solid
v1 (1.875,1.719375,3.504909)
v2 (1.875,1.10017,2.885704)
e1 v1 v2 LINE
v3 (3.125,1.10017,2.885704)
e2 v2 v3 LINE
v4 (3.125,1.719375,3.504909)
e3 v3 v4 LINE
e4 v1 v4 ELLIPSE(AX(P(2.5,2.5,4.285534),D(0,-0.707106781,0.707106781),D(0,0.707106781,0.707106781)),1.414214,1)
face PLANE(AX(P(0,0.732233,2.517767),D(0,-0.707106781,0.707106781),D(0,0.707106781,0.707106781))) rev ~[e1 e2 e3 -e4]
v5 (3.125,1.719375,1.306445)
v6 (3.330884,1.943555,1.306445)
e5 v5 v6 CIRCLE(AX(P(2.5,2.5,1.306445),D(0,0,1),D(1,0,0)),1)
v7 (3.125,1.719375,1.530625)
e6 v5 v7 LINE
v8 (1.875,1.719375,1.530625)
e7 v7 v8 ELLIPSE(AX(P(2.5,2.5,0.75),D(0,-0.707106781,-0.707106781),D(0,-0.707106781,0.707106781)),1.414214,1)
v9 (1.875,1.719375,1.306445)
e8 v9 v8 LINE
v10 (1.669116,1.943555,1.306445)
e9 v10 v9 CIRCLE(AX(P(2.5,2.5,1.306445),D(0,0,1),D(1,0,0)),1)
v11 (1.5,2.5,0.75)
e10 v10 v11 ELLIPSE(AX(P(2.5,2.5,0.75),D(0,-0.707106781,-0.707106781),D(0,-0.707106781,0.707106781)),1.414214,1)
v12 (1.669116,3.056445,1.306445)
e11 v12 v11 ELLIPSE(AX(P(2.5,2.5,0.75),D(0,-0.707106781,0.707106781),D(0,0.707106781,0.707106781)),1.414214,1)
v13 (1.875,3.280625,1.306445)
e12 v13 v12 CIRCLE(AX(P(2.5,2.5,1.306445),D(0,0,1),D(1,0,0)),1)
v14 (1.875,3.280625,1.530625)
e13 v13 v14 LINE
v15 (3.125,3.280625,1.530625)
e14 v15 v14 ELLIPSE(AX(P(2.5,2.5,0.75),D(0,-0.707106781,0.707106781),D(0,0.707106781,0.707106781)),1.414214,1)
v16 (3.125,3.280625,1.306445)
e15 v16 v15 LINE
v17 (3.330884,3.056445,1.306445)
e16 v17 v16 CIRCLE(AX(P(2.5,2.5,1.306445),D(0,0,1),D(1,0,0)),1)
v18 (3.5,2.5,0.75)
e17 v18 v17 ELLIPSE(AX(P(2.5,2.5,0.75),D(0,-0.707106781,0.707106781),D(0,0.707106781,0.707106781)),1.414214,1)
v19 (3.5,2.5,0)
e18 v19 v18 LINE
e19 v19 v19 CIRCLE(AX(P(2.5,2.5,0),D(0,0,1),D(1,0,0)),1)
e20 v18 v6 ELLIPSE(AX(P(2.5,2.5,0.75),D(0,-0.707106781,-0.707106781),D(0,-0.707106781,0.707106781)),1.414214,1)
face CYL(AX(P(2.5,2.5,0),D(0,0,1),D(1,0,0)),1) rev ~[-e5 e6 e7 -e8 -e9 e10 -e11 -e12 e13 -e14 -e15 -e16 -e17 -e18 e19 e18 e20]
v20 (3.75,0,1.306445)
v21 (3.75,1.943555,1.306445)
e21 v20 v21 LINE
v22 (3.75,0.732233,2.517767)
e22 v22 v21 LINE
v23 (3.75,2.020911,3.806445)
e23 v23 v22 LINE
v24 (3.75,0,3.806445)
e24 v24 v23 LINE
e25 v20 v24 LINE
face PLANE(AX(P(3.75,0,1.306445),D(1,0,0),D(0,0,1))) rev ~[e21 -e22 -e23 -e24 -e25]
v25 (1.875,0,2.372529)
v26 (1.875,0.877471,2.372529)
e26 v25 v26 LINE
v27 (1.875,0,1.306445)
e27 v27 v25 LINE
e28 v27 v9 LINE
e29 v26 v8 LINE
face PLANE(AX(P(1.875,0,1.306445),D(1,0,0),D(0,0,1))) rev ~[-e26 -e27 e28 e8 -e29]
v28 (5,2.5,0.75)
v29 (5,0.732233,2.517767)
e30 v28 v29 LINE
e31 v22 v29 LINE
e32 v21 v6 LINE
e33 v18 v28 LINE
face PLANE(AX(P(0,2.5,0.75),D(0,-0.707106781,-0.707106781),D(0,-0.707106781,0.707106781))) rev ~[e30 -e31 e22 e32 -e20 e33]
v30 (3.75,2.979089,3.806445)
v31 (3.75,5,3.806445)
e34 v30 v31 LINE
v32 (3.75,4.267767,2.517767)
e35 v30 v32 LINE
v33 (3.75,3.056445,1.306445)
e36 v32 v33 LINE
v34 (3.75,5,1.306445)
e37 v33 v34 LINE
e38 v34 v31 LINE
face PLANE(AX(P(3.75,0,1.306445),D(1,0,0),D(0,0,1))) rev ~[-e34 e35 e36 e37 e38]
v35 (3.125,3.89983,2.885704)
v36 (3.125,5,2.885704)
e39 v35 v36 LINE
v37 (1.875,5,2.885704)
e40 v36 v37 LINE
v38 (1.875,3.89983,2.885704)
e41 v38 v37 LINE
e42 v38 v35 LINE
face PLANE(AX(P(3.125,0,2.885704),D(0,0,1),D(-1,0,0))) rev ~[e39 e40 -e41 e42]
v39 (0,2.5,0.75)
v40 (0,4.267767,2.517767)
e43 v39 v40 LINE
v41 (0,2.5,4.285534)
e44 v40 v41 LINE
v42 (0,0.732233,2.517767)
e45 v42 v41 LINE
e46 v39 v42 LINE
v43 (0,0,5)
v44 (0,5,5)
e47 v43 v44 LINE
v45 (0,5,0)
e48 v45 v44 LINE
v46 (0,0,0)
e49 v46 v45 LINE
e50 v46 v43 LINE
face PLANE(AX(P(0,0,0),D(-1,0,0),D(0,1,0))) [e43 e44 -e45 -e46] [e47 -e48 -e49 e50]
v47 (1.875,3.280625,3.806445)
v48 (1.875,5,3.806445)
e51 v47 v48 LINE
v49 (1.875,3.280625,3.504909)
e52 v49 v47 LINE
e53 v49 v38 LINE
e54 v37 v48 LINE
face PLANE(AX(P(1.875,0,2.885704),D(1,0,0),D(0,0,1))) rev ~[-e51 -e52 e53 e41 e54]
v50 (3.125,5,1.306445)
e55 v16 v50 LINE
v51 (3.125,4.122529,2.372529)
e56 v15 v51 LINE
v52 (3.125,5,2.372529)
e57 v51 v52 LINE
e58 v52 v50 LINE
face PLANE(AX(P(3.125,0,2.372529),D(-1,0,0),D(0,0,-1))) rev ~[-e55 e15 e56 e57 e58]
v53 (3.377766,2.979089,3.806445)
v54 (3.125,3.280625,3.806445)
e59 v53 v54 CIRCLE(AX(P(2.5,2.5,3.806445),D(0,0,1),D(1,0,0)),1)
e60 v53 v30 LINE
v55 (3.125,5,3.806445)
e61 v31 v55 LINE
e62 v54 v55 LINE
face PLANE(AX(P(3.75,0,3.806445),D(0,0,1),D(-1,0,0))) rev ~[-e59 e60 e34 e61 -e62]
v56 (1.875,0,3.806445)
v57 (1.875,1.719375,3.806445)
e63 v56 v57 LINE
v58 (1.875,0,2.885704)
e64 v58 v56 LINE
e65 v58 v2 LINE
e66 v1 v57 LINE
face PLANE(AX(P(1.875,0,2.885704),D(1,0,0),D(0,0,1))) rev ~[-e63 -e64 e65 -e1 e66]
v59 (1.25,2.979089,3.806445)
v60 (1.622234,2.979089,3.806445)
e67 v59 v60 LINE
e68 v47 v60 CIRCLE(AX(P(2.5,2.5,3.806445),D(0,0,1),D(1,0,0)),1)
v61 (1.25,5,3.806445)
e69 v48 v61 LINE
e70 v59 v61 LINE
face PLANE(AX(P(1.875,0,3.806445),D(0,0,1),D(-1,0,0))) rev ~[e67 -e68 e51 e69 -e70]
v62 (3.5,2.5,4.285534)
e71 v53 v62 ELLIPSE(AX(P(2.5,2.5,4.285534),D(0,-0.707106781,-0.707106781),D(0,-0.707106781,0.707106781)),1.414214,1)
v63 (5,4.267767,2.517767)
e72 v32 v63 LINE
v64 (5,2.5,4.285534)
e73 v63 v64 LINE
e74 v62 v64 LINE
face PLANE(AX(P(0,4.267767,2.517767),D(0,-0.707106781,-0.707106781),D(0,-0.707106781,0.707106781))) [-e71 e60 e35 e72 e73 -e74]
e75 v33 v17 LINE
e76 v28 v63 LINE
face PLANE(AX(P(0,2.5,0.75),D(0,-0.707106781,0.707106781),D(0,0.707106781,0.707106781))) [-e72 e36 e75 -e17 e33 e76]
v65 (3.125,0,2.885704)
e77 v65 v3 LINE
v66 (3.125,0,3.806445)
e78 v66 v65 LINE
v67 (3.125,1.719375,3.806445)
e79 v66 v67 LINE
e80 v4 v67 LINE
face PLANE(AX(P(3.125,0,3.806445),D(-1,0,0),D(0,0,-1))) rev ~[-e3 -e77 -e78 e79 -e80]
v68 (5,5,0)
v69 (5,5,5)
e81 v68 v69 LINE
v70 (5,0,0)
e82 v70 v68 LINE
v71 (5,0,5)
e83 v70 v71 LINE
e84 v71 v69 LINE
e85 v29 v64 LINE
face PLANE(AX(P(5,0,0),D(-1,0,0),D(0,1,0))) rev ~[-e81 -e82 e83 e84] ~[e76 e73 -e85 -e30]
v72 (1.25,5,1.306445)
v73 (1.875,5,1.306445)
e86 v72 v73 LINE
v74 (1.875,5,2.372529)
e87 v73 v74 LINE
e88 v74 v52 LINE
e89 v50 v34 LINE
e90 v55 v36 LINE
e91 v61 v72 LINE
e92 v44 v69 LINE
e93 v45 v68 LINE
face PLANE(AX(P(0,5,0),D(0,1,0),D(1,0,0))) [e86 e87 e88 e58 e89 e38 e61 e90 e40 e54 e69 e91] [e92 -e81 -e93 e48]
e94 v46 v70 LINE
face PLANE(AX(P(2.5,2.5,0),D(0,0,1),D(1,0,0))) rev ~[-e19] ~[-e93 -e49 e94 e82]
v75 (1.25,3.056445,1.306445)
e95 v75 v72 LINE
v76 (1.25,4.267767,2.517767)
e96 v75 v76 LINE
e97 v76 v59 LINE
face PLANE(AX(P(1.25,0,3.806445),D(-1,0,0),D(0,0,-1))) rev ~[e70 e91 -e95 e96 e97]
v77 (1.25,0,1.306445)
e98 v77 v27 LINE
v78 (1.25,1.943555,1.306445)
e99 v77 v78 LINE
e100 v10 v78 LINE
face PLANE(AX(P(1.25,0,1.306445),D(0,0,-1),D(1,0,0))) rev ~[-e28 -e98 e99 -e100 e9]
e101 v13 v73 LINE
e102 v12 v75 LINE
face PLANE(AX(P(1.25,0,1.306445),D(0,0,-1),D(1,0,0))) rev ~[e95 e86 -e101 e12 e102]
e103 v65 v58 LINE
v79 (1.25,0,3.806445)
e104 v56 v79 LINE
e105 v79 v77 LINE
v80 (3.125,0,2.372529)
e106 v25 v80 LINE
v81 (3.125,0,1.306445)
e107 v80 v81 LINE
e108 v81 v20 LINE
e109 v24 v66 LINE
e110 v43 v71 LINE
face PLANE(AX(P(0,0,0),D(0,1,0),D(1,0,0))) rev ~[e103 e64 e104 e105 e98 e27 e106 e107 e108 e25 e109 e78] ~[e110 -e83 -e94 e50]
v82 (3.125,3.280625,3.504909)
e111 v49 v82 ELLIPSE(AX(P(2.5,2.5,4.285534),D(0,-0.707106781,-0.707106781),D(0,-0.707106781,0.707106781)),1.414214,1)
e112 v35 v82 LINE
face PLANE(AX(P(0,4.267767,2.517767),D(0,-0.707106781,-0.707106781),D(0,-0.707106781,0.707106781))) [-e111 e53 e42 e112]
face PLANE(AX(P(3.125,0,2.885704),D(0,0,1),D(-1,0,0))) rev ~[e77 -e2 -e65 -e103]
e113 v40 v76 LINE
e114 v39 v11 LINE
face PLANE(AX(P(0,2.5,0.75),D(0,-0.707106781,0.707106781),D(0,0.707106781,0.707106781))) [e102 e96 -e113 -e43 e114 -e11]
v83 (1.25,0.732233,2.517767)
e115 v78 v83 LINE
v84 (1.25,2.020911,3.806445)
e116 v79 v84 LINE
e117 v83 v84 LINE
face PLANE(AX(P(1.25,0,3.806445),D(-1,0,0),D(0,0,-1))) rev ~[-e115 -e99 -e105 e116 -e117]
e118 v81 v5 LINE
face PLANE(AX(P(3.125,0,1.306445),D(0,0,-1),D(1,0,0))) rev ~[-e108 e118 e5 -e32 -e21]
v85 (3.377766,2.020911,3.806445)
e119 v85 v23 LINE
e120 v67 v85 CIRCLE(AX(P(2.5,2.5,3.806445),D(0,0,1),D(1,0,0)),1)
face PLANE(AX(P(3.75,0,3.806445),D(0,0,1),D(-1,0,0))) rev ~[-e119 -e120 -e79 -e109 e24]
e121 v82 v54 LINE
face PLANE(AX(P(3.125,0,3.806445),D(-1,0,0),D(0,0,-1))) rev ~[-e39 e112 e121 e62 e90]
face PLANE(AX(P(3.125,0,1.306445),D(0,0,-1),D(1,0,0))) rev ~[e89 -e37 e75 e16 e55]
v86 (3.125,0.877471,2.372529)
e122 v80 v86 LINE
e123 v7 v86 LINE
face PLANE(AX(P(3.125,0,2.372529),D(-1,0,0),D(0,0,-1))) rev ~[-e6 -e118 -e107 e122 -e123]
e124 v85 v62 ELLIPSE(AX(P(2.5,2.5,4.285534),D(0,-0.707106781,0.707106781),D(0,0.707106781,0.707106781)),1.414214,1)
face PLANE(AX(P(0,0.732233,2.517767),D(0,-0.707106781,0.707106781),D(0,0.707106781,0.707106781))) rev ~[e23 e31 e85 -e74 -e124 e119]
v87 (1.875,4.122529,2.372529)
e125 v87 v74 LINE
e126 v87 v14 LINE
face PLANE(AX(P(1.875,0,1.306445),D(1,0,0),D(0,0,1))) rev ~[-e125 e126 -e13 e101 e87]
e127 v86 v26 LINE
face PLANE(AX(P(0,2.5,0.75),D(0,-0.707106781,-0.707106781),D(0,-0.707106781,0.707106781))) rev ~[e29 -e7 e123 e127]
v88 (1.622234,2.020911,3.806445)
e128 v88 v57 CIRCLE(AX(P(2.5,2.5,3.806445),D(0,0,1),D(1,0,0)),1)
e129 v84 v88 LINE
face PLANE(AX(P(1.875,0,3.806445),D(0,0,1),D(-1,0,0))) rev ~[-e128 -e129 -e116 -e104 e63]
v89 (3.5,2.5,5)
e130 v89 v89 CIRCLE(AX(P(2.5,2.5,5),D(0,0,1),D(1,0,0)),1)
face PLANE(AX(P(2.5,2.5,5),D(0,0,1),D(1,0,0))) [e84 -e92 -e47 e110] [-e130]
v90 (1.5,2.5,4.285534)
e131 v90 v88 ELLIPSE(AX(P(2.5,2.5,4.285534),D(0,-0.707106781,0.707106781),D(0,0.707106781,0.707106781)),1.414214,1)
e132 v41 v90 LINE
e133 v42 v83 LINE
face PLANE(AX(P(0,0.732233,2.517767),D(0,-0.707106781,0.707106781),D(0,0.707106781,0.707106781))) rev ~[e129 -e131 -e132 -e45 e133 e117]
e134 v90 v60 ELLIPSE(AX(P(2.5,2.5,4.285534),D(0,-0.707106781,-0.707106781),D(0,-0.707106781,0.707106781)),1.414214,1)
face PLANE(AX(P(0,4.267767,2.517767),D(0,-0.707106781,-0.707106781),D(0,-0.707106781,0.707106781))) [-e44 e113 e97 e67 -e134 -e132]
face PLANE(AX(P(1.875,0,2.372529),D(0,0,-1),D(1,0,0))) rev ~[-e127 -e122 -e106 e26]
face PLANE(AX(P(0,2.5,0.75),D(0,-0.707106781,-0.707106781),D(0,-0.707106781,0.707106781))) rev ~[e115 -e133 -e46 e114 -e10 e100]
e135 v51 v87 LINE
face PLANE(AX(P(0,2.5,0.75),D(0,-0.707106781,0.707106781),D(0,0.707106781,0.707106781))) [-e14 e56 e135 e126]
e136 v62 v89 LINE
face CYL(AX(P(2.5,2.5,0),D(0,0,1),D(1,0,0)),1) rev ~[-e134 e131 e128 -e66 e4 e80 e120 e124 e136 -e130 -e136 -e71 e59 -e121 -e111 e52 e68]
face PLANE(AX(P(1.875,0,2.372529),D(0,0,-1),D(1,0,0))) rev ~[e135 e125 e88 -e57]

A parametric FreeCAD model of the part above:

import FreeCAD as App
import Part
import Sketcher
Q = App.Units.Quantity


def add_polygon(sketch, points):
    """Adds a closed chain of lines whose ends are joined by coincident constraints."""
    first, n = sketch.GeometryCount, len(points)
    for a, b in zip(points, points[1:] + points[:1]):
        sketch.addGeometry(Part.LineSegment(App.Vector(*a, 0), App.Vector(*b, 0)), False)
    for i in range(n):
        sketch.addConstraint(Sketcher.Constraint("Coincident", first + i, 2, first + (i + 1) % n, 1))

doc = App.newDocument("Part")
body = doc.addObject("PartDesign::Body", "Body")

# Sketch on XY plane
sketch1 = body.newObject("Sketcher::SketchObject", "Sketch")
sketch1.AttachmentSupport = (doc.getObject("XY_Plane"), [""])
sketch1.MapMode = "FlatFace"
add_polygon(sketch1, [(0, 5), (0, 0), (5, 0), (5, 5)])  # lines 0-3
sketch1.addConstraint([
    Sketcher.Constraint("Vertical", 0),
    Sketcher.Constraint("Horizontal", 1),
    Sketcher.Constraint("Vertical", 2),
    Sketcher.Constraint("Horizontal", 3),
    Sketcher.Constraint("Coincident", 0, 2, -1, 1),
    Sketcher.Constraint("Equal", 3, 0),
    Sketcher.Constraint("DistanceX", 1, 1, 1, 2, Q("5 mm")),
])
pad1 = body.newObject("PartDesign::Pad", "Pad")
pad1.Profile = sketch1
pad1.Length = 5

# Sketch on XY plane
sketch2 = body.newObject("Sketcher::SketchObject", "Sketch001")
sketch2.AttachmentSupport = (doc.getObject("XY_Plane"), [""])
sketch2.MapMode = "FlatFace"
sketch2.addGeometry(Part.Circle(App.Vector(2.5, 2.5, 0), App.Vector(0, 0, 1), 1), False)
sketch2.addConstraint([
    Sketcher.Constraint("Diameter", 0, Q("2 mm")),
    Sketcher.Constraint("DistanceX", -1, 1, 0, 3, Q("2.5 mm")),
    Sketcher.Constraint("DistanceY", -1, 1, 0, 3, Q("2.5 mm")),
])
pocket1 = body.newObject("PartDesign::Pocket", "Pocket")
pocket1.Profile = sketch2
pocket1.Length = 15
pocket1.Midplane = True

# Sketch on XZ plane
sketch3 = body.newObject("Sketcher::SketchObject", "Sketch002")
sketch3.AttachmentSupport = (doc.getObject("XZ_Plane"), [""])
sketch3.MapMode = "FlatFace"
add_polygon(sketch3, [(1.2, 3.8), (1.2, 1.3), (1.9, 1.3), (1.9, 2.4), (3.1, 2.4), (3.1, 1.3), (3.8, 1.3), (3.8, 3.8), (3.1, 3.8), (3.1, 2.9), (1.9, 2.9), (1.9, 3.8)])  # lines 0-11
sketch3.addConstraint([
    Sketcher.Constraint("Vertical", 0),
    Sketcher.Constraint("Horizontal", 1),
    Sketcher.Constraint("Vertical", 2),
    Sketcher.Constraint("Horizontal", 3),
    Sketcher.Constraint("Vertical", 4),
    Sketcher.Constraint("Horizontal", 5),
    Sketcher.Constraint("Vertical", 6),
    Sketcher.Constraint("Horizontal", 7),
    Sketcher.Constraint("Vertical", 8),
    Sketcher.Constraint("Horizontal", 9),
    Sketcher.Constraint("Vertical", 10),
    Sketcher.Constraint("Horizontal", 11),
    Sketcher.Constraint("Horizontal", 1, 2, 4, 2),
    Sketcher.Constraint("Horizontal", 7, 2, 10, 2),
    Sketcher.Constraint("Vertical", 4, 2, 7, 2),
    Sketcher.Constraint("Vertical", 2, 2, 9, 2),
    Sketcher.Constraint("Equal", 1, 5),
    Sketcher.Constraint("DistanceY", 0, 2, 0, 1, Q("2.5 mm")),
    Sketcher.Constraint("DistanceX", 3, 1, 3, 2, Q("1.25 mm")),
    Sketcher.Constraint("DistanceX", 0, 2, 5, 2, Q("2.5 mm")),
    Sketcher.Constraint("DistanceX", -1, 1, 0, 2, Q("1.25 mm")),
    Sketcher.Constraint("DistanceY", 8, 2, 8, 1, Q("0.920741 mm")),
    Sketcher.Constraint("DistanceY", 2, 1, 2, 2, Q("1.066084 mm")),
    Sketcher.Constraint("DistanceY", -1, 1, 2, 2, Q("2.372529 mm")),
])
pocket2 = body.newObject("PartDesign::Pocket", "Pocket001")
pocket2.Profile = sketch3
pocket2.Length = 5

# Sketch on YZ plane
sketch4 = body.newObject("Sketcher::SketchObject", "Sketch003")
sketch4.AttachmentSupport = (doc.getObject("YZ_Plane"), [""])
sketch4.MapMode = "FlatFace"
add_polygon(sketch4, [(0.7, 2.5), (2.5, 0.8), (4.3, 2.5), (2.5, 4.3)])  # lines 0-3
sketch4.addConstraint([
    Sketcher.Constraint("Perpendicular", 0, 1),
    Sketcher.Constraint("Perpendicular", 1, 2),
    Sketcher.Constraint("Perpendicular", 2, 3),
    Sketcher.Constraint("Horizontal", 1, 2, 3, 2),
    Sketcher.Constraint("Vertical", 0, 2, 2, 2),
    Sketcher.Constraint("Distance", 0, Q("2.5 mm")),
    Sketcher.Constraint("DistanceX", -1, 1, 0, 2, Q("2.5 mm")),
    Sketcher.Constraint("DistanceY", -1, 1, 0, 2, Q("0.75 mm")),
])
pocket3 = body.newObject("PartDesign::Pocket", "Pocket002")
pocket3.Profile = sketch4
pocket3.Length = 5
pocket3.Reversed = True

doc.recompute()
